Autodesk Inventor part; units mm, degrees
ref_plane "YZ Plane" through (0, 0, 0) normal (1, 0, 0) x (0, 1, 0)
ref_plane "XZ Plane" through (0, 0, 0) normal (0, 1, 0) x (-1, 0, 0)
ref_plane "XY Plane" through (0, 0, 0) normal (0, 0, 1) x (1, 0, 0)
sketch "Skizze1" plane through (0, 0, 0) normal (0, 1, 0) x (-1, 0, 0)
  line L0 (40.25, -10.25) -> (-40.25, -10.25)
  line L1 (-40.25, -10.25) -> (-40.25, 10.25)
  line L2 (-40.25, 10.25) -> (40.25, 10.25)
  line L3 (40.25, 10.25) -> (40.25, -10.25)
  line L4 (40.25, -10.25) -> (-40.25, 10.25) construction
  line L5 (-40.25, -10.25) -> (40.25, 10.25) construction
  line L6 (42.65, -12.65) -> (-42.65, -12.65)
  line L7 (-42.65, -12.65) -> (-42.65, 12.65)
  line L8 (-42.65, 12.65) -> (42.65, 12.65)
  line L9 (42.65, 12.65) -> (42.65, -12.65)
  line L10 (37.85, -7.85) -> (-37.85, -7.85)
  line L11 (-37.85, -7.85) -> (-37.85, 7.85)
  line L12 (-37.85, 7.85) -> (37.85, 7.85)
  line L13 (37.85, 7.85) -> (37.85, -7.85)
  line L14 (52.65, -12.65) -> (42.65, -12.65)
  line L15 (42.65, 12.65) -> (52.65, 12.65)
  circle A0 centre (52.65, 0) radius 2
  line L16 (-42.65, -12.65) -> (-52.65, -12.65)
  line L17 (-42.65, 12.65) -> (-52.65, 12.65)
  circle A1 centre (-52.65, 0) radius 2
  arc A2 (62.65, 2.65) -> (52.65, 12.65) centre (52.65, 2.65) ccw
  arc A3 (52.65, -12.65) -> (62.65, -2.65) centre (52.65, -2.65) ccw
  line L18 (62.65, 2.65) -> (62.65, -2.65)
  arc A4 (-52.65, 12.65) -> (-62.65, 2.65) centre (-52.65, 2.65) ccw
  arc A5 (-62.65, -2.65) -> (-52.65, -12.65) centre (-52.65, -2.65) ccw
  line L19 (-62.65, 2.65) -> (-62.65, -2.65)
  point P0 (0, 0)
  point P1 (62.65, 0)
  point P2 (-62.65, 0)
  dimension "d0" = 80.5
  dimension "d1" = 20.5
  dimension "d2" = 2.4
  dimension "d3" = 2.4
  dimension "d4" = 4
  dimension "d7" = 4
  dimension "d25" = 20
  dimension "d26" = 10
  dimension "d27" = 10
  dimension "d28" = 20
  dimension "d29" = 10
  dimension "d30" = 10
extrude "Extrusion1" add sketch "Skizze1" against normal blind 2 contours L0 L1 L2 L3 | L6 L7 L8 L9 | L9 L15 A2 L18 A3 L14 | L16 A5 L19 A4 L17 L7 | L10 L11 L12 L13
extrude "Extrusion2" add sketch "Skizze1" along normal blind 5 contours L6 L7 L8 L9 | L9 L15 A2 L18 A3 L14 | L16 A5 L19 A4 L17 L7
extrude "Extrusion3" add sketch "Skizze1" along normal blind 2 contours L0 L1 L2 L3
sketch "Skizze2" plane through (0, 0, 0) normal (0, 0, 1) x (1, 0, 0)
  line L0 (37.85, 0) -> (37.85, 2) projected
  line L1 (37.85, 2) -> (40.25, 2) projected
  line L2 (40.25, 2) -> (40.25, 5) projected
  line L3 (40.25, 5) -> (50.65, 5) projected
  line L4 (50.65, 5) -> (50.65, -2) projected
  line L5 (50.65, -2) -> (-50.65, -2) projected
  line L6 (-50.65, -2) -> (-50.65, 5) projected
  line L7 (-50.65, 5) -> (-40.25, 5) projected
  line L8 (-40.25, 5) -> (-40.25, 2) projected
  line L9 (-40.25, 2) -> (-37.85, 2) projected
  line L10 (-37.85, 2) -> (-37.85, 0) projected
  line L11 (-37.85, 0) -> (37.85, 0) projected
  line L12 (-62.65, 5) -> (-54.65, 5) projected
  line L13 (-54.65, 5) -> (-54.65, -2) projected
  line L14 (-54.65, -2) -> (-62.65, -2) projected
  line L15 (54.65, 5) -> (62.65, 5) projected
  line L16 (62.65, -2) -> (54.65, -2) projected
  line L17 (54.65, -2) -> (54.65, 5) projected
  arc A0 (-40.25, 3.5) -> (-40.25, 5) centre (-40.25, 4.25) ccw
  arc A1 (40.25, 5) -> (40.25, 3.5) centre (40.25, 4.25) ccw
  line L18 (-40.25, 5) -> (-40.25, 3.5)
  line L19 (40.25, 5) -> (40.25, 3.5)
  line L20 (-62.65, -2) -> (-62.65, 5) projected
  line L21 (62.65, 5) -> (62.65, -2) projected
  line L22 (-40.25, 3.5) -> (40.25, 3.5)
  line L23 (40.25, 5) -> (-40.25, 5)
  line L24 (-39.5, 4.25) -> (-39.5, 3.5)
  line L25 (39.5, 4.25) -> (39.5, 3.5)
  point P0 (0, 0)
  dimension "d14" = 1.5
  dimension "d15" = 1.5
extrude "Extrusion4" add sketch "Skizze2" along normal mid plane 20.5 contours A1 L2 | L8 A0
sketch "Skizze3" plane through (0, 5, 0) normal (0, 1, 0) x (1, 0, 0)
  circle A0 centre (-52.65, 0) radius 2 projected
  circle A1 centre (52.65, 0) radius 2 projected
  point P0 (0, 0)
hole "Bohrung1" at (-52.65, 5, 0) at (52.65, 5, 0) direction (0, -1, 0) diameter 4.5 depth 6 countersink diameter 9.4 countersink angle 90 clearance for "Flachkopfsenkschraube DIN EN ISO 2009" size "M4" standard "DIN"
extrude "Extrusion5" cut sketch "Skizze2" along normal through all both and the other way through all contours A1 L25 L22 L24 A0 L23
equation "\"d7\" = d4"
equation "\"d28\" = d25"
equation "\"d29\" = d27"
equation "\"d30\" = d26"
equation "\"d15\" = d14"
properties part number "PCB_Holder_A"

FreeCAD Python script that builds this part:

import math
import FreeCAD as App
import Part
import Sketcher

V = App.Vector
Q = App.Units.Quantity


def add_polygon(sketch, points):
    """Adds a closed chain of lines whose ends are joined by coincident constraints."""
    first, n = sketch.GeometryCount, len(points)
    for a, b in zip(points, points[1:] + points[:1]):
        sketch.addGeometry(Part.LineSegment(App.Vector(*a, 0), App.Vector(*b, 0)), False)
    for i in range(n):
        sketch.addConstraint(Sketcher.Constraint("Coincident", first + i, 2, first + (i + 1) % n, 1))

doc = App.newDocument("Part")
body = doc.addObject("PartDesign::Body", "Body")

sketch1 = body.newObject("Sketcher::SketchObject", "Sketch")
sketch1.AttachmentSupport = (doc.getObject("XZ_Plane"), [""])
sketch1.MapMode = "FlatFace"
sketch1.addGeometry(Part.ArcOfCircle(Part.Circle(V(-52.6, -2.6, 0), V(0, 0, 1), 10), math.radians(180), math.radians(270)), False)
sketch1.addGeometry(Part.LineSegment(V(-62.6, -2.6, 0), V(-62.6, 2.6, 0)), False)
sketch1.addGeometry(Part.ArcOfCircle(Part.Circle(V(-52.6, 2.6, 0), V(0, 0, 1), 10), math.radians(90), math.radians(180)), False)
sketch1.addGeometry(Part.LineSegment(V(-52.6, 12.7, 0), V(52.6, 12.7, 0)), False)
sketch1.addGeometry(Part.ArcOfCircle(Part.Circle(V(52.6, 2.6, 0), V(0, 0, 1), 10), math.radians(0), math.radians(90)), False)
sketch1.addGeometry(Part.LineSegment(V(62.6, 2.6, 0), V(62.6, -2.6, 0)), False)
sketch1.addGeometry(Part.ArcOfCircle(Part.Circle(V(52.6, -2.6, 0), V(0, 0, 1), 10), math.radians(-90), math.radians(0)), False)
sketch1.addGeometry(Part.LineSegment(V(52.6, -12.7, 0), V(-52.6, -12.7, 0)), False)
sketch1.addGeometry(Part.Circle(V(52.6, 0, 0), V(0, 0, 1), 2), False)
sketch1.addGeometry(Part.Circle(V(-52.6, 0, 0), V(0, 0, 1), 2), False)
sketch1.addConstraint(Sketcher.Constraint("Tangent", 0, 1, 1, 1))
sketch1.addConstraint(Sketcher.Constraint("Tangent", 1, 2, 2, 2))
sketch1.addConstraint(Sketcher.Constraint("Tangent", 2, 1, 3, 1))
sketch1.addConstraint(Sketcher.Constraint("Tangent", 3, 2, 4, 2))
sketch1.addConstraint(Sketcher.Constraint("Tangent", 4, 1, 5, 1))
sketch1.addConstraint(Sketcher.Constraint("Tangent", 5, 2, 6, 2))
sketch1.addConstraint(Sketcher.Constraint("Tangent", 6, 1, 7, 1))
sketch1.addConstraint(Sketcher.Constraint("Tangent", 7, 2, 0, 2))
sketch1.addConstraint(Sketcher.Constraint("Vertical", 1))
sketch1.addConstraint(Sketcher.Constraint("Horizontal", 3))
sketch1.addConstraint(Sketcher.Constraint("Vertical", 5))
sketch1.addConstraint(Sketcher.Constraint("Horizontal", 7))
sketch1.addConstraint(Sketcher.Constraint("Equal", 0, 2))
sketch1.addConstraint(Sketcher.Constraint("Equal", 2, 4))
sketch1.addConstraint(Sketcher.Constraint("Equal", 4, 6))
sketch1.addConstraint(Sketcher.Constraint("Equal", 8, 9))
sketch1.addConstraint(Sketcher.Constraint("Symmetric", 0, 3, 4, 3, -1, 1))
sketch1.addConstraint(Sketcher.Constraint("Symmetric", 8, 3, 9, 3, -1, 1))
sketch1.addConstraint(Sketcher.Constraint("PointOnObject", 8, 3, -1))
sketch1.addConstraint(Sketcher.Constraint("Vertical", 6, 3, 8, 3))
sketch1.addConstraint(Sketcher.Constraint("Diameter", 8, Q("4 mm")))
sketch1.addConstraint(Sketcher.Constraint("Radius", 0, Q("10 mm")))
sketch1.addConstraint(Sketcher.Constraint("DistanceX", 3, 1, 3, 2, Q("105.3 mm")))
sketch1.addConstraint(Sketcher.Constraint("DistanceY", 1, 1, 1, 2, Q("5.3 mm")))
pad1 = body.newObject("PartDesign::Pad", "Pad")
pad1.Profile = sketch1
pad1.Length = 2

sketch2 = body.newObject("Sketcher::SketchObject", "Sketch001")
sketch2.AttachmentSupport = (doc.getObject("XZ_Plane"), [""])
sketch2.MapMode = "FlatFace"
sketch2.addGeometry(Part.ArcOfCircle(Part.Circle(V(-52.6, -2.6, 0), V(0, 0, 1), 10), math.radians(180), math.radians(270)), False)
sketch2.addGeometry(Part.LineSegment(V(-62.6, -2.6, 0), V(-62.6, 2.6, 0)), False)
sketch2.addGeometry(Part.ArcOfCircle(Part.Circle(V(-52.6, 2.6, 0), V(0, 0, 1), 10), math.radians(90), math.radians(180)), False)
sketch2.addGeometry(Part.LineSegment(V(-52.6, 12.7, 0), V(52.6, 12.7, 0)), False)
sketch2.addGeometry(Part.ArcOfCircle(Part.Circle(V(52.6, 2.6, 0), V(0, 0, 1), 10), math.radians(0), math.radians(90)), False)
sketch2.addGeometry(Part.LineSegment(V(62.6, 2.6, 0), V(62.6, -2.6, 0)), False)
sketch2.addGeometry(Part.ArcOfCircle(Part.Circle(V(52.6, -2.6, 0), V(0, 0, 1), 10), math.radians(-90), math.radians(0)), False)
sketch2.addGeometry(Part.LineSegment(V(52.6, -12.7, 0), V(-52.6, -12.7, 0)), False)
add_polygon(sketch2, [(-40.2, 10.2), (-40.2, -10.2), (40.2, -10.2), (40.2, 10.2)])
sketch2.addGeometry(Part.Circle(V(52.6, 0, 0), V(0, 0, 1), 2), False)
sketch2.addGeometry(Part.Circle(V(-52.6, 0, 0), V(0, 0, 1), 2), False)
sketch2.addConstraint(Sketcher.Constraint("Tangent", 0, 1, 1, 1))
sketch2.addConstraint(Sketcher.Constraint("Tangent", 1, 2, 2, 2))
sketch2.addConstraint(Sketcher.Constraint("Tangent", 2, 1, 3, 1))
sketch2.addConstraint(Sketcher.Constraint("Tangent", 3, 2, 4, 2))
sketch2.addConstraint(Sketcher.Constraint("Tangent", 4, 1, 5, 1))
sketch2.addConstraint(Sketcher.Constraint("Tangent", 5, 2, 6, 2))
sketch2.addConstraint(Sketcher.Constraint("Tangent", 6, 1, 7, 1))
sketch2.addConstraint(Sketcher.Constraint("Tangent", 7, 2, 0, 2))
sketch2.addConstraint(Sketcher.Constraint("Vertical", 1))
sketch2.addConstraint(Sketcher.Constraint("Horizontal", 3))
sketch2.addConstraint(Sketcher.Constraint("Vertical", 5))
sketch2.addConstraint(Sketcher.Constraint("Horizontal", 7))
sketch2.addConstraint(Sketcher.Constraint("Vertical", 8))
sketch2.addConstraint(Sketcher.Constraint("Horizontal", 9))
sketch2.addConstraint(Sketcher.Constraint("Vertical", 10))
sketch2.addConstraint(Sketcher.Constraint("Horizontal", 11))
sketch2.addConstraint(Sketcher.Constraint("Equal", 0, 2))
sketch2.addConstraint(Sketcher.Constraint("Equal", 2, 4))
sketch2.addConstraint(Sketcher.Constraint("Equal", 4, 6))
sketch2.addConstraint(Sketcher.Constraint("Equal", 12, 13))
sketch2.addConstraint(Sketcher.Constraint("Symmetric", 0, 3, 4, 3, -1, 1))
sketch2.addConstraint(Sketcher.Constraint("Symmetric", 12, 3, 13, 3, -1, 1))
sketch2.addConstraint(Sketcher.Constraint("Symmetric", 8, 2, 10, 2, -1, 1))
sketch2.addConstraint(Sketcher.Constraint("PointOnObject", 12, 3, -1))
sketch2.addConstraint(Sketcher.Constraint("Vertical", 6, 3, 12, 3))
sketch2.addConstraint(Sketcher.Constraint("Diameter", 12, Q("4 mm")))
sketch2.addConstraint(Sketcher.Constraint("Radius", 0, Q("10 mm")))
sketch2.addConstraint(Sketcher.Constraint("DistanceX", 9, 1, 9, 2, Q("80.5 mm")))
sketch2.addConstraint(Sketcher.Constraint("DistanceY", 8, 2, 8, 1, Q("20.5 mm")))
sketch2.addConstraint(Sketcher.Constraint("DistanceY", 7, 2, 8, 2, Q("2.4 mm")))
sketch2.addConstraint(Sketcher.Constraint("DistanceX", 3, 1, 3, 2, Q("105.3 mm")))
pad2 = body.newObject("PartDesign::Pad", "Pad001")
pad2.Profile = sketch2
pad2.Length = 5
pad2.Reversed = True

sketch3 = body.newObject("Sketcher::SketchObject", "Sketch002")
sketch3.AttachmentSupport = (doc.getObject("XZ_Plane"), [""])
sketch3.MapMode = "FlatFace"
add_polygon(sketch3, [(40, -10), (-40, -10), (-40, 10), (40, 10)])
add_polygon(sketch3, [(-38, 8), (-38, -8), (38, -8), (38, 8)])
sketch3.addConstraint(Sketcher.Constraint("Horizontal", 0))
sketch3.addConstraint(Sketcher.Constraint("Vertical", 1))
sketch3.addConstraint(Sketcher.Constraint("Horizontal", 2))
sketch3.addConstraint(Sketcher.Constraint("Vertical", 3))
sketch3.addConstraint(Sketcher.Constraint("Vertical", 4))
sketch3.addConstraint(Sketcher.Constraint("Horizontal", 5))
sketch3.addConstraint(Sketcher.Constraint("Vertical", 6))
sketch3.addConstraint(Sketcher.Constraint("Horizontal", 7))
sketch3.addConstraint(Sketcher.Constraint("Symmetric", 0, 2, 2, 2, -1, 1))
sketch3.addConstraint(Sketcher.Constraint("Symmetric", 4, 2, 6, 2, -1, 1))
sketch3.addConstraint(Sketcher.Constraint("DistanceX", 0, 2, 0, 1, Q("80.5 mm")))
sketch3.addConstraint(Sketcher.Constraint("DistanceY", 1, 1, 1, 2, Q("20.5 mm")))
sketch3.addConstraint(Sketcher.Constraint("DistanceX", 0, 2, 4, 2, Q("2.4 mm")))
sketch3.addConstraint(Sketcher.Constraint("DistanceY", 0, 2, 4, 2, Q("2.4 mm")))
pad3 = body.newObject("PartDesign::Pad", "Pad002")
pad3.Profile = sketch3
pad3.Length = 2
pad3.Reversed = True

sketch4 = body.newObject("Sketcher::SketchObject", "Sketch003")
sketch4.AttachmentSupport = (doc.getObject("XY_Plane"), [""])
sketch4.MapMode = "FlatFace"
sketch4.addGeometry(Part.ArcOfCircle(Part.Circle(V(40.2, 4.2, 0), V(0, 0, 1), 0.8), math.radians(90), math.radians(270)), False)
sketch4.addGeometry(Part.LineSegment(V(40.2, 3.5, 0), V(40.2, 5, 0)), False)
sketch4.addGeometry(Part.LineSegment(V(-40.2, 5, 0), V(-40.2, 3.5, 0)), False)
sketch4.addGeometry(Part.ArcOfCircle(Part.Circle(V(-40.2, 4.2, 0), V(0, 0, 1), 0.8), math.radians(-90), math.radians(90)), False)
sketch4.addConstraint(Sketcher.Constraint("Coincident", 0, 1, 1, 2))
sketch4.addConstraint(Sketcher.Constraint("Coincident", 1, 1, 0, 2))
sketch4.addConstraint(Sketcher.Constraint("Coincident", 2, 1, 3, 2))
sketch4.addConstraint(Sketcher.Constraint("Coincident", 3, 1, 2, 2))
sketch4.addConstraint(Sketcher.Constraint("Vertical", 1))
sketch4.addConstraint(Sketcher.Constraint("Vertical", 2))
sketch4.addConstraint(Sketcher.Constraint("Equal", 0, 3))
sketch4.addConstraint(Sketcher.Constraint("Symmetric", 0, 3, 3, 3, -2))
sketch4.addConstraint(Sketcher.Constraint("Vertical", 3, 3, 2, 1))
sketch4.addConstraint(Sketcher.Constraint("Radius", 0, Q("0.75 mm")))
sketch4.addConstraint(Sketcher.Constraint("DistanceY", -1, 1, 0, 1, Q("5 mm")))
sketch4.addConstraint(Sketcher.Constraint("DistanceX", 3, 3, 0, 3, Q("80.5 mm")))
sketch4.addConstraint(Sketcher.Constraint("DistanceX", 3, 3, 0, 1, Q("80.5 mm")))
pad4 = body.newObject("PartDesign::Pad", "Pad003")
pad4.Profile = sketch4
pad4.Length = 20.5
pad4.Midplane = True

sketch5 = body.newObject("Sketcher::SketchObject", "Sketch004")
sketch5.AttachmentSupport = (doc.getObject("XZ_Plane"), [""])
sketch5.MapMode = "FlatFace"
sketch5.AttachmentOffset = App.Placement(V(0, 0, -5), App.Rotation())
sketch5.addGeometry(Part.Circle(V(-52.6, 0, 0), V(0, 0, 1), 2.2), False)
sketch5.addGeometry(Part.Circle(V(52.6, 0, 0), V(0, 0, 1), 2.2), False)
sketch5.addConstraint(Sketcher.Constraint("Equal", 0, 1))
sketch5.addConstraint(Sketcher.Constraint("Symmetric", 0, 3, 1, 3, -1, 1))
sketch5.addConstraint(Sketcher.Constraint("PointOnObject", 0, 3, -1))
sketch5.addConstraint(Sketcher.Constraint("Diameter", 0, Q("4.5 mm")))
sketch5.addConstraint(Sketcher.Constraint("DistanceX", 0, 3, 1, 3, Q("105.3 mm")))
doc.recompute()
hole = body.newObject("PartDesign::Hole", "Hole")
hole.Profile = sketch5
hole.ThreadType = "None"
hole.Diameter = 4.5
hole.DepthType = "Dimension"
hole.Depth = 6
hole.DrillPoint = "Flat"
hole.HoleCutType = "Countersink"
hole.HoleCutDiameter = 9.4
hole.HoleCutCountersinkAngle = 90
hole.Reversed = True

sketch6 = body.newObject("Sketcher::SketchObject", "Sketch005")
sketch6.AttachmentSupport = (doc.getObject("XY_Plane"), [""])
sketch6.MapMode = "FlatFace"
sketch6.addGeometry(Part.ArcOfCircle(Part.Circle(V(40.2, 4.2, 0), V(0, 0, 1), 0.8), math.radians(90), math.radians(180)), False)
sketch6.addGeometry(Part.LineSegment(V(40.2, 5, 0), V(-40.2, 5, 0)), False)
sketch6.addGeometry(Part.ArcOfCircle(Part.Circle(V(-40.2, 4.2, 0), V(0, 0, 1), 0.8), math.radians(0), math.radians(90)), False)
sketch6.addGeometry(Part.LineSegment(V(-39.5, 4.2, 0), V(-39.5, 3.5, 0)), False)
sketch6.addGeometry(Part.LineSegment(V(-39.5, 3.5, 0), V(39.5, 3.5, 0)), False)
sketch6.addGeometry(Part.LineSegment(V(39.5, 3.5, 0), V(39.5, 4.2, 0)), False)
sketch6.addConstraint(Sketcher.Constraint("Tangent", 0, 1, 1, 1))
sketch6.addConstraint(Sketcher.Constraint("Tangent", 1, 2, 2, 2))
sketch6.addConstraint(Sketcher.Constraint("Tangent", 2, 1, 3, 1))
sketch6.addConstraint(Sketcher.Constraint("Coincident", 3, 2, 4, 1))
sketch6.addConstraint(Sketcher.Constraint("Coincident", 4, 2, 5, 1))
sketch6.addConstraint(Sketcher.Constraint("Tangent", 5, 2, 0, 2))
sketch6.addConstraint(Sketcher.Constraint("Horizontal", 1))
sketch6.addConstraint(Sketcher.Constraint("Vertical", 3))
sketch6.addConstraint(Sketcher.Constraint("Horizontal", 4))
sketch6.addConstraint(Sketcher.Constraint("Vertical", 5))
sketch6.addConstraint(Sketcher.Constraint("Equal", 0, 2))
sketch6.addConstraint(Sketcher.Constraint("Radius", 0, Q("0.75 mm")))
sketch6.addConstraint(Sketcher.Constraint("DistanceY", 3, 2, 1, 2, Q("1.5 mm")))
sketch6.addConstraint(Sketcher.Constraint("DistanceX", 4, 1, 4, 2, Q("79 mm")))
sketch6.addConstraint(Sketcher.Constraint("DistanceY", -1, 1, 0, 1, Q("5 mm")))
sketch6.addConstraint(Sketcher.Constraint("DistanceX", 2, 1, -1, 1, Q("39.5 mm")))
pocket1 = body.newObject("PartDesign::Pocket", "Pocket")
pocket1.Profile = sketch6
pocket1.Type = "ThroughAll"
pocket1.Midplane = True

doc.recompute()
